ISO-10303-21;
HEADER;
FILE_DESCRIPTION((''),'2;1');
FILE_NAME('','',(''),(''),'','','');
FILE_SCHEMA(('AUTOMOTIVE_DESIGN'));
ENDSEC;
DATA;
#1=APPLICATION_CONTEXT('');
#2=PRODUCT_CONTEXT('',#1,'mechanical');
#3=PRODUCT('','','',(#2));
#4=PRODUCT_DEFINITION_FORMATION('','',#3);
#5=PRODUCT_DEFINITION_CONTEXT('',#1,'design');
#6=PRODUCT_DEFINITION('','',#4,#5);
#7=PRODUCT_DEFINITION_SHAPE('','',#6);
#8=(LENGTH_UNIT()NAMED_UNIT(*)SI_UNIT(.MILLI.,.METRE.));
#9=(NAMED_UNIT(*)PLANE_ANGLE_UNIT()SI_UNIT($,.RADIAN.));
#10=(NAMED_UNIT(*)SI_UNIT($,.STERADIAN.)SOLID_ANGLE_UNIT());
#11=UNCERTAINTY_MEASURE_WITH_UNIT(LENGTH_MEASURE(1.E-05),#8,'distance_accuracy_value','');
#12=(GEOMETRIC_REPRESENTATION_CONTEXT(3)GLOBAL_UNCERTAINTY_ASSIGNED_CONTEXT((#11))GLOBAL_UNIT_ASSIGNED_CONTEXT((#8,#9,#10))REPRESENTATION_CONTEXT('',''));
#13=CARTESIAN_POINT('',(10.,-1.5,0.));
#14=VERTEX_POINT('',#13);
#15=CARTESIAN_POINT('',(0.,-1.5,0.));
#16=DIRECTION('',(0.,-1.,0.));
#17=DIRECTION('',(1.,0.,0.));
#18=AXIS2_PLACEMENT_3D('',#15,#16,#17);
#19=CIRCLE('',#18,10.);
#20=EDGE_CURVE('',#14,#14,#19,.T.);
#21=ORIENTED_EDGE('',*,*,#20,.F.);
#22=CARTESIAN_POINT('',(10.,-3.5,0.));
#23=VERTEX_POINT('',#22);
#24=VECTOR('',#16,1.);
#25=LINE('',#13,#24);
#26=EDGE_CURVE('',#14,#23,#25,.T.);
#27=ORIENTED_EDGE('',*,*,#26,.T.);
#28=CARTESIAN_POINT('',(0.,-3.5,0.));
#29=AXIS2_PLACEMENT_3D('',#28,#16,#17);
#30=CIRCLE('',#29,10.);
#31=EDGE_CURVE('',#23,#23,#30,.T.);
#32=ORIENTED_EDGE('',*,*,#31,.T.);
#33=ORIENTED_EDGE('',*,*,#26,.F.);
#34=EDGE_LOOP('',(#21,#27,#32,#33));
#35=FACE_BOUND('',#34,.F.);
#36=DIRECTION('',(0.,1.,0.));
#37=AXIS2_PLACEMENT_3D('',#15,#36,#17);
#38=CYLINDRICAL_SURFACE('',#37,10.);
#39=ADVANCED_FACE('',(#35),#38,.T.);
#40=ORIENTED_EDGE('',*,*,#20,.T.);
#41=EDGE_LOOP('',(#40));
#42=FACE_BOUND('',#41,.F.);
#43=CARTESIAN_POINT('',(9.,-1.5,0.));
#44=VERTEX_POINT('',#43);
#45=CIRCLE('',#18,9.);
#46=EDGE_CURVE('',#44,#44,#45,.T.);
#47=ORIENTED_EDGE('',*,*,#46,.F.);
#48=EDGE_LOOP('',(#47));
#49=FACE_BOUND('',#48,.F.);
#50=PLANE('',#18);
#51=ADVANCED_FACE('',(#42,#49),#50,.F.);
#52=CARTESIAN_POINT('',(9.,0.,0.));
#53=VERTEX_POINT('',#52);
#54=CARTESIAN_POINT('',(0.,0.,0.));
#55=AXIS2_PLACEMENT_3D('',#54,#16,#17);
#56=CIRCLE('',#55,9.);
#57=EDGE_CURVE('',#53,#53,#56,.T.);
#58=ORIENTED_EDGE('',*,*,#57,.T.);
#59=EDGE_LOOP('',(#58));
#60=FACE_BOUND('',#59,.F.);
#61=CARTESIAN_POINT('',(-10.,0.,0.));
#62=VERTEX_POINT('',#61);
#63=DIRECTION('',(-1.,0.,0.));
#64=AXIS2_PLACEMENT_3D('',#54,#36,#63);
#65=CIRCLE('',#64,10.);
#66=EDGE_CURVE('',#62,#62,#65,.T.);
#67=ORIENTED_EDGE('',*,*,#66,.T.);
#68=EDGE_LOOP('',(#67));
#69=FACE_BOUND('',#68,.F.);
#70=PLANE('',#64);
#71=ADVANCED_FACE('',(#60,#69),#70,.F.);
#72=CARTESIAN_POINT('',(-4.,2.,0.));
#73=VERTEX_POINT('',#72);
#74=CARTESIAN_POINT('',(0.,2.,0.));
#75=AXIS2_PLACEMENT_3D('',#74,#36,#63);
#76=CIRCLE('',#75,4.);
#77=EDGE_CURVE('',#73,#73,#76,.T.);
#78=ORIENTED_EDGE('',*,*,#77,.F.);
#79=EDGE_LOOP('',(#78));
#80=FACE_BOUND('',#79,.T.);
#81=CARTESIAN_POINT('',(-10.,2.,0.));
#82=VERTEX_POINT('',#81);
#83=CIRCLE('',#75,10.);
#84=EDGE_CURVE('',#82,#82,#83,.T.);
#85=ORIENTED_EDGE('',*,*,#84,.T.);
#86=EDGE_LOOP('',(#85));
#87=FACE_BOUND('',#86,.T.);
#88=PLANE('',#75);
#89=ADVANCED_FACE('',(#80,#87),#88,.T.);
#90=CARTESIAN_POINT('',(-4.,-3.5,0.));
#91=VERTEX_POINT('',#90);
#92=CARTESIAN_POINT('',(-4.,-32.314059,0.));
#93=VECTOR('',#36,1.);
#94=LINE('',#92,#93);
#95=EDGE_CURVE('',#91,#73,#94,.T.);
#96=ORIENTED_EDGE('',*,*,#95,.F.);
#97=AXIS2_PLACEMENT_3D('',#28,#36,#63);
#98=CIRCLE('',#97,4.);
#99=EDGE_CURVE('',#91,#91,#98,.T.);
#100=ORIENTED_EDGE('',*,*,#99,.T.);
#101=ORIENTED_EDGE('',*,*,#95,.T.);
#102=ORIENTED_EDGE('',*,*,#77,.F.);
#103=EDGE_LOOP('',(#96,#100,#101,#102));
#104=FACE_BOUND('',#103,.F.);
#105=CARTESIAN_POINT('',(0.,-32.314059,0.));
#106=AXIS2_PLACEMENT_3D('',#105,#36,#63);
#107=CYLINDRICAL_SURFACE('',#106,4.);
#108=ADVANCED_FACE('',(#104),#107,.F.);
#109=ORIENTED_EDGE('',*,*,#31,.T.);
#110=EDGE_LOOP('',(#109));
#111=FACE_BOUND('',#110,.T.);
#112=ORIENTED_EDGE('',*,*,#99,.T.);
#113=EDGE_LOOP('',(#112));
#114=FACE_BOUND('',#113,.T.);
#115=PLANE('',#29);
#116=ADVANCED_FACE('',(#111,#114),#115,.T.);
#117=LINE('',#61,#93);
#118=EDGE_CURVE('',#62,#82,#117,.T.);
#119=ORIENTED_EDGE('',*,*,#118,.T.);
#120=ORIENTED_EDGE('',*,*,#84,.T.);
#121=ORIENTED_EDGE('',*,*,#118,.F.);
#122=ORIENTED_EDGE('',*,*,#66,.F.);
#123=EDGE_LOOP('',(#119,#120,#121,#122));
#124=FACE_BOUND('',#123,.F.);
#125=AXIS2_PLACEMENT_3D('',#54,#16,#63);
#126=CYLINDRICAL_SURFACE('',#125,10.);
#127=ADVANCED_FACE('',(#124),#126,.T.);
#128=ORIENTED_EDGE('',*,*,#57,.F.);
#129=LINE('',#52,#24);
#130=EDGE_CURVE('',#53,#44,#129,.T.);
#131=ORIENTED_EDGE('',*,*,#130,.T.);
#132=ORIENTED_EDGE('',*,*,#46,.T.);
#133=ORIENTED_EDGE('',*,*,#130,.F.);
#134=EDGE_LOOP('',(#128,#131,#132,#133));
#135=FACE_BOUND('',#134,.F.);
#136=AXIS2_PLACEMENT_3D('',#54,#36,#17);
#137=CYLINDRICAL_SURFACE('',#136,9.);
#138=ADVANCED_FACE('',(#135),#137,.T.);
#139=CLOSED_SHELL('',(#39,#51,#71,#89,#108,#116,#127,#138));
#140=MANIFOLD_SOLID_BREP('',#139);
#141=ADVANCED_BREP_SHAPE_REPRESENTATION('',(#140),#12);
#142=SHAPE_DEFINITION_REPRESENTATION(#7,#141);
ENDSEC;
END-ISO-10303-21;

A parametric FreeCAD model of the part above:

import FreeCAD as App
import Part
import Sketcher

V = App.Vector

doc = App.newDocument("Part")
body = doc.addObject("PartDesign::Body", "Body")

# Sketch on XZ plane
sketch1 = body.newObject("Sketcher::SketchObject", "Sketch")
sketch1.AttachmentSupport = (doc.getObject("XZ_Plane"), [""])
sketch1.MapMode = "FlatFace"
sketch1.addGeometry(Part.Circle(V(0, 0, 0), V(0, 0, 1), 9), False)
sketch1.addConstraint([
    Sketcher.Constraint("Coincident", 0, 3, -1, 1),
    Sketcher.Constraint("Diameter", 0, 18.0),
])
pad1 = body.newObject("PartDesign::Pad", "Pad")
pad1.Profile = sketch1
pad1.Length = 1.5

# Sketch on XZ plane
sketch2 = body.newObject("Sketcher::SketchObject", "Sketch001")
sketch2.AttachmentSupport = (doc.getObject("XZ_Plane"), [""])
sketch2.MapMode = "FlatFace"
sketch2.AttachmentOffset = App.Placement(V(0, 0, 1.5), App.Rotation())
sketch2.addGeometry(Part.Circle(V(0, 0, 0), V(0, 0, 1), 10), False)
sketch2.addConstraint([
    Sketcher.Constraint("Coincident", 0, 3, -1, 1),
    Sketcher.Constraint("Diameter", 0, 20.0),
])
pad2 = body.newObject("PartDesign::Pad", "Pad001")
pad2.Profile = sketch2
pad2.Length = 2

# Sketch on XZ plane
sketch3 = body.newObject("Sketcher::SketchObject", "Sketch002")
sketch3.AttachmentSupport = (doc.getObject("XZ_Plane"), [""])
sketch3.MapMode = "FlatFace"
sketch3.addGeometry(Part.Circle(V(0, 0, 0), V(0, 0, 1), 10), False)
sketch3.addConstraint([
    Sketcher.Constraint("Coincident", 0, 3, -1, 1),
    Sketcher.Constraint("Diameter", 0, 20.0),
])
pad3 = body.newObject("PartDesign::Pad", "Pad002")
pad3.Profile = sketch3
pad3.Length = 2
pad3.Reversed = True

# Sketch on XZ plane
sketch4 = body.newObject("Sketcher::SketchObject", "Sketch003")
sketch4.AttachmentSupport = (doc.getObject("XZ_Plane"), [""])
sketch4.MapMode = "FlatFace"
sketch4.AttachmentOffset = App.Placement(V(0, 0, 3.5), App.Rotation())
sketch4.addGeometry(Part.Circle(V(0, 0, 0), V(0, 0, 1), 4), False)
sketch4.addConstraint([
    Sketcher.Constraint("Coincident", 0, 3, -1, 1),
    Sketcher.Constraint("Diameter", 0, 8.0),
])
doc.recompute()
hole = body.newObject("PartDesign::Hole", "Hole")
hole.Profile = sketch4
hole.ThreadType = "None"
hole.Diameter = 8
hole.DepthType = "ThroughAll"

doc.recompute()
